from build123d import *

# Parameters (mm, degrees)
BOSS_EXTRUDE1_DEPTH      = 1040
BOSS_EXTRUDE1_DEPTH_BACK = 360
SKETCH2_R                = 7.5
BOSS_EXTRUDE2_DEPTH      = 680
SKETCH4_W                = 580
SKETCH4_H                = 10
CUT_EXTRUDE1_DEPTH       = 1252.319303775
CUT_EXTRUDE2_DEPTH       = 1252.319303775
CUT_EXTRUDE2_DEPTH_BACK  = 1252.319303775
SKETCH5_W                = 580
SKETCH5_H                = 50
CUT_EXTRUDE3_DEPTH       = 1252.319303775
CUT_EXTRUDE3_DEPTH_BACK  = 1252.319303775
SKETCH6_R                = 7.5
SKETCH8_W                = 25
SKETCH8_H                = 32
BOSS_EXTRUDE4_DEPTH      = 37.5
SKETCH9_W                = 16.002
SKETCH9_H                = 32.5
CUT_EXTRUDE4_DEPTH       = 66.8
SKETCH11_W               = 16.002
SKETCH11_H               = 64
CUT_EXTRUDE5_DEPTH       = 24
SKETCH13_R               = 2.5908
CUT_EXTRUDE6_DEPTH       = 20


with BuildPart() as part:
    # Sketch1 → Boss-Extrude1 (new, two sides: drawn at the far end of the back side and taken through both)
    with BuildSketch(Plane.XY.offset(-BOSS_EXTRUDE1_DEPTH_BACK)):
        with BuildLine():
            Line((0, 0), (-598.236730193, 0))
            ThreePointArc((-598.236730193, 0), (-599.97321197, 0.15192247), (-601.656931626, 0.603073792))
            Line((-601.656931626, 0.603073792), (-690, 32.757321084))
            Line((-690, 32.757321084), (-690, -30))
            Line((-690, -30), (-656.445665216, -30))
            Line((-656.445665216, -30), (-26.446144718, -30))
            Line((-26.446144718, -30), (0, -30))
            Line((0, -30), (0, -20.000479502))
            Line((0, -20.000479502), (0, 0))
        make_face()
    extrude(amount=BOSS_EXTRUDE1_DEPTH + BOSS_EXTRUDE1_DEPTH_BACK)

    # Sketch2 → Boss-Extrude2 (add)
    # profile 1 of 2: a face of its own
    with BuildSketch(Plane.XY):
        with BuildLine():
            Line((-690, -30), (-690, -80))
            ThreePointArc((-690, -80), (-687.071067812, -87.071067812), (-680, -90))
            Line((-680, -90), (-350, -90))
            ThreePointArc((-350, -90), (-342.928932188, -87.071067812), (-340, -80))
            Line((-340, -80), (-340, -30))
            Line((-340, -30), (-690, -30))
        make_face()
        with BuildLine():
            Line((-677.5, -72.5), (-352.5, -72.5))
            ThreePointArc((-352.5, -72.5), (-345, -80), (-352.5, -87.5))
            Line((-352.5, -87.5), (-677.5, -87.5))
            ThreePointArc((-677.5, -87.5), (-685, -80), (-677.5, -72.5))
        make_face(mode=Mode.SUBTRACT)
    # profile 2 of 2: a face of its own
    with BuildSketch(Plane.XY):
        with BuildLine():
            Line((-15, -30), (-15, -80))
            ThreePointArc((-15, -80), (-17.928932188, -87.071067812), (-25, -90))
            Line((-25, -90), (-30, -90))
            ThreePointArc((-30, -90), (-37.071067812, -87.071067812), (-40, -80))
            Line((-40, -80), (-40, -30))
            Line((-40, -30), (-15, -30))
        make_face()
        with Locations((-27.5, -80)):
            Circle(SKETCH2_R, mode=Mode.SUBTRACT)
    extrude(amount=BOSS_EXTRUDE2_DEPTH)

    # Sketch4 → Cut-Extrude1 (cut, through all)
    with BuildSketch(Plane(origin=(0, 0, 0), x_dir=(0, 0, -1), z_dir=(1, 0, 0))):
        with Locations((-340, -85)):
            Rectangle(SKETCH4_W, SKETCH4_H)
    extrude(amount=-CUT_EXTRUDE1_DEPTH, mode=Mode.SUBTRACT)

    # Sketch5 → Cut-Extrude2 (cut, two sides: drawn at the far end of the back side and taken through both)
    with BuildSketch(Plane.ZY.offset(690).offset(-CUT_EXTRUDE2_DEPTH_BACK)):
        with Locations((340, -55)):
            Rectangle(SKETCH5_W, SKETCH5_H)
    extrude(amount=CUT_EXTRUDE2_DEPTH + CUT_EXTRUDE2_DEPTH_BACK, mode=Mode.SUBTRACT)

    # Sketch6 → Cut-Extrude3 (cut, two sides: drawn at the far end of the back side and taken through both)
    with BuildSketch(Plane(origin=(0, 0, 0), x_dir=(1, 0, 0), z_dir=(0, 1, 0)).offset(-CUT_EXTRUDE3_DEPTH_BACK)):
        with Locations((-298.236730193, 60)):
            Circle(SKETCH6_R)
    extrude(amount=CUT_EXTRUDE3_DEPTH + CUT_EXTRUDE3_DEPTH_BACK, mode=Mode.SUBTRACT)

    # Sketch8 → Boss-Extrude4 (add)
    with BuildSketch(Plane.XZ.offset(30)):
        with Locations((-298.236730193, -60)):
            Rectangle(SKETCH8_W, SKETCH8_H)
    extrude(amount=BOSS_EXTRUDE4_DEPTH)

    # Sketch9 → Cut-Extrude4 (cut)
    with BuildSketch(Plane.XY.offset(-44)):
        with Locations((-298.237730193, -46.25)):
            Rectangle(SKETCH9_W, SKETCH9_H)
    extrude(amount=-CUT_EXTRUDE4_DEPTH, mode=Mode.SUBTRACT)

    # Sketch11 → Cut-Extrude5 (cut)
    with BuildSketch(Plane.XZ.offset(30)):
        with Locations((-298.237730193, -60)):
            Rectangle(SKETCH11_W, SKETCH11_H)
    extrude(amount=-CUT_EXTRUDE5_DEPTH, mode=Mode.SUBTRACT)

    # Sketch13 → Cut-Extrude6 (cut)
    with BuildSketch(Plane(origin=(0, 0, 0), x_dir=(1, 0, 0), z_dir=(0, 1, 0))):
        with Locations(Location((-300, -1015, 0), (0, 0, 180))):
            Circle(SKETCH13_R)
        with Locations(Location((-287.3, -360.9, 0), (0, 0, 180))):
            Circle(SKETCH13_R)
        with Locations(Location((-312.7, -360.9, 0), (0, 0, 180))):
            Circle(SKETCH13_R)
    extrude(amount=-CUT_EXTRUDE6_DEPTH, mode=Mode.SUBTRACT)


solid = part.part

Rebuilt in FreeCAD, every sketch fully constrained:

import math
import FreeCAD as App
import Part
import Sketcher
Q = App.Units.Quantity

doc = App.newDocument("Part")
body = doc.addObject("PartDesign::Body", "Body")

# Sketch on XY plane
sketch1 = body.newObject("Sketcher::SketchObject", "Sketch")
sketch1.AttachmentSupport = (doc.getObject("XY_Plane"), [""])
sketch1.MapMode = "FlatFace"
sketch1.addGeometry([
    Part.LineSegment(App.Vector(0, 0, 0), App.Vector(-598.23673, 0, 0)),  # 0
    Part.ArcOfCircle(Part.Circle(App.Vector(-598.23673, 10, 0), App.Vector(0, 0, 1), 10), math.radians(-110), math.radians(-90)),  # 1
    Part.LineSegment(App.Vector(-601.656932, 0.603074, 0), App.Vector(-690, 32.757321, 0)),  # 2
    Part.LineSegment(App.Vector(-690, 32.757321, 0), App.Vector(-690, -30, 0)),  # 3
    Part.LineSegment(App.Vector(-690, -30, 0), App.Vector(0, -30, 0)),  # 4
    Part.LineSegment(App.Vector(0, -30, 0), App.Vector(0, 0, 0)),  # 5
], False)
sketch1.addConstraint([
    Sketcher.Constraint("Tangent", 0, 2, 1, 2),
    Sketcher.Constraint("Tangent", 1, 1, 2, 1),
    Sketcher.Constraint("Coincident", 2, 2, 3, 1),
    Sketcher.Constraint("Coincident", 3, 2, 4, 1),
    Sketcher.Constraint("Coincident", 4, 2, 5, 1),
    Sketcher.Constraint("Coincident", 5, 2, 0, 1),
    Sketcher.Constraint("Horizontal", 0),
    Sketcher.Constraint("Vertical", 3),
    Sketcher.Constraint("Horizontal", 4),
    Sketcher.Constraint("Vertical", 5),
    Sketcher.Constraint("Coincident", 5, 2, -1, 1),
    Sketcher.Constraint("Radius", 1, 10.0),
    Sketcher.Constraint("DistanceX", 4, 1, 4, 2, 690.0),
    Sketcher.Constraint("DistanceY", 5, 1, 5, 2, 30.0),
    Sketcher.Constraint("Angle", 2, Q("160 deg")),
    Sketcher.Constraint("DistanceX", 0, 2, 0, 1, 598.23673),
])
pad1 = body.newObject("PartDesign::Pad", "Pad")
pad1.Profile = sketch1
pad1.Type = "TwoLengths"
pad1.Length = 1040
pad1.Length2 = 360

# Sketch on XY plane
sketch2 = body.newObject("Sketcher::SketchObject", "Sketch001")
sketch2.AttachmentSupport = (doc.getObject("XY_Plane"), [""])
sketch2.MapMode = "FlatFace"
sketch2.addGeometry([
    Part.LineSegment(App.Vector(-690, -30, 0), App.Vector(-690, -80, 0)),  # 0
    Part.ArcOfCircle(Part.Circle(App.Vector(-680, -80, 0), App.Vector(0, 0, 1), 10), math.radians(180), math.radians(270)),  # 1
    Part.LineSegment(App.Vector(-680, -90, 0), App.Vector(-350, -90, 0)),  # 2
    Part.ArcOfCircle(Part.Circle(App.Vector(-350, -80, 0), App.Vector(0, 0, 1), 10), math.radians(-90), math.radians(0)),  # 3
    Part.LineSegment(App.Vector(-340, -80, 0), App.Vector(-340, -30, 0)),  # 4
    Part.LineSegment(App.Vector(-340, -30, 0), App.Vector(-690, -30, 0)),  # 5
    Part.ArcOfCircle(Part.Circle(App.Vector(-677.5, -80, 0), App.Vector(0, 0, 1), 7.5), math.radians(90), math.radians(270)),  # 6
    Part.LineSegment(App.Vector(-677.5, -72.5, 0), App.Vector(-352.5, -72.5, 0)),  # 7
    Part.ArcOfCircle(Part.Circle(App.Vector(-352.5, -80, 0), App.Vector(0, 0, 1), 7.5), math.radians(-90), math.radians(90)),  # 8
    Part.LineSegment(App.Vector(-352.5, -87.5, 0), App.Vector(-677.5, -87.5, 0)),  # 9
    Part.LineSegment(App.Vector(-15, -80, 0), App.Vector(-15, -30, 0)),  # 10
    Part.LineSegment(App.Vector(-15, -30, 0), App.Vector(-40, -30, 0)),  # 11
    Part.LineSegment(App.Vector(-40, -30, 0), App.Vector(-40, -80, 0)),  # 12
    Part.ArcOfCircle(Part.Circle(App.Vector(-30, -80, 0), App.Vector(0, 0, 1), 10), math.radians(180), math.radians(270)),  # 13
    Part.LineSegment(App.Vector(-30, -90, 0), App.Vector(-25, -90, 0)),  # 14
    Part.ArcOfCircle(Part.Circle(App.Vector(-25, -80, 0), App.Vector(0, 0, 1), 10), math.radians(-90), math.radians(0)),  # 15
    Part.Circle(App.Vector(-27.5, -80, 0), App.Vector(0, 0, 1), 7.5),  # 16
], False)
sketch2.addConstraint([
    Sketcher.Constraint("Tangent", 0, 2, 1, 1),
    Sketcher.Constraint("Tangent", 1, 2, 2, 1),
    Sketcher.Constraint("Tangent", 2, 2, 3, 1),
    Sketcher.Constraint("Tangent", 3, 2, 4, 1),
    Sketcher.Constraint("Coincident", 4, 2, 5, 1),
    Sketcher.Constraint("Coincident", 5, 2, 0, 1),
    Sketcher.Constraint("Tangent", 6, 1, 7, 1),
    Sketcher.Constraint("Tangent", 7, 2, 8, 2),
    Sketcher.Constraint("Tangent", 8, 1, 9, 1),
    Sketcher.Constraint("Tangent", 9, 2, 6, 2),
    Sketcher.Constraint("Coincident", 10, 2, 11, 1),
    Sketcher.Constraint("Coincident", 11, 2, 12, 1),
    Sketcher.Constraint("Tangent", 12, 2, 13, 1),
    Sketcher.Constraint("Tangent", 13, 2, 14, 1),
    Sketcher.Constraint("Tangent", 14, 2, 15, 1),
    Sketcher.Constraint("Tangent", 15, 2, 10, 1),
    Sketcher.Constraint("Vertical", 0),
    Sketcher.Constraint("Horizontal", 2),
    Sketcher.Constraint("Vertical", 4),
    Sketcher.Constraint("Horizontal", 5),
    Sketcher.Constraint("Horizontal", 7),
    Sketcher.Constraint("Horizontal", 9),
    Sketcher.Constraint("Vertical", 10),
    Sketcher.Constraint("Horizontal", 11),
    Sketcher.Constraint("Vertical", 12),
    Sketcher.Constraint("Horizontal", 14),
    Sketcher.Constraint("Equal", 1, 3),
    Sketcher.Constraint("Equal", 3, 13),
    Sketcher.Constraint("Equal", 13, 15),
    Sketcher.Constraint("Equal", 8, 16),
    Sketcher.Constraint("Horizontal", 3, 3, 6, 3),
    Sketcher.Constraint("Horizontal", 8, 3, 13, 3),
    Sketcher.Constraint("Horizontal", 15, 3, 16, 3),
    Sketcher.Constraint("Horizontal", 5, 2, 10, 2),
    Sketcher.Constraint("Diameter", 16, 15.0),
    Sketcher.Constraint("Radius", 1, 10.0),
    Sketcher.Constraint("DistanceX", 2, 1, 2, 2, 330.0),
    Sketcher.Constraint("DistanceX", 7, 1, 7, 2, 325.0),
    Sketcher.Constraint("DistanceX", 11, 2, 11, 1, 25.0),
    Sketcher.Constraint("DistanceY", 0, 2, 0, 1, 50.0),
    Sketcher.Constraint("DistanceX", 1, 3, -1, 1, 680.0),
    Sketcher.Constraint("DistanceY", 1, 3, -1, 1, 80.0),
    Sketcher.Constraint("DistanceX", 13, 3, -1, 1, 30.0),
    Sketcher.Constraint("DistanceX", 8, 3, 16, 3, 325.0),
    Sketcher.Constraint("DistanceX", 6, 3, -1, 1, 677.5),
])
pad2 = body.newObject("PartDesign::Pad", "Pad001")
pad2.Profile = sketch2
pad2.Length = 680

# Sketch on YZ plane
sketch3 = body.newObject("Sketcher::SketchObject", "Sketch002")
sketch3.AttachmentSupport = (doc.getObject("YZ_Plane"), [""])
sketch3.MapMode = "FlatFace"
sketch3.addGeometry([
    Part.LineSegment(App.Vector(-80, 630, 0), App.Vector(-90, 630, 0)),
    Part.LineSegment(App.Vector(-90, 630, 0), App.Vector(-90, 50, 0)),
    Part.LineSegment(App.Vector(-90, 50, 0), App.Vector(-80, 50, 0)),
    Part.LineSegment(App.Vector(-80, 50, 0), App.Vector(-80, 630, 0)),
], False)
sketch3.addConstraint([
    Sketcher.Constraint("Coincident", 0, 2, 1, 1),
    Sketcher.Constraint("Coincident", 1, 2, 2, 1),
    Sketcher.Constraint("Coincident", 2, 2, 3, 1),
    Sketcher.Constraint("Coincident", 3, 2, 0, 1),
    Sketcher.Constraint("Horizontal", 0),
    Sketcher.Constraint("Vertical", 1),
    Sketcher.Constraint("Horizontal", 2),
    Sketcher.Constraint("Vertical", 3),
    Sketcher.Constraint("DistanceX", 0, 2, 0, 1, 10.0),
    Sketcher.Constraint("DistanceY", 1, 2, 1, 1, 580.0),
    Sketcher.Constraint("DistanceX", 0, 2, -1, 1, 90.0),
    Sketcher.Constraint("DistanceY", -1, 1, 0, 2, 630.0),
])
pocket1 = body.newObject("PartDesign::Pocket", "Pocket")
pocket1.Profile = sketch3
pocket1.Type = "ThroughAll"

# Sketch on YZ plane
sketch4 = body.newObject("Sketcher::SketchObject", "Sketch003")
sketch4.AttachmentSupport = (doc.getObject("YZ_Plane"), [""])
sketch4.MapMode = "FlatFace"
sketch4.AttachmentOffset = App.Placement(App.Vector(0, 0, -690), App.Rotation())
sketch4.addGeometry([
    Part.LineSegment(App.Vector(-30, 50, 0), App.Vector(-80, 50, 0)),
    Part.LineSegment(App.Vector(-80, 50, 0), App.Vector(-80, 630, 0)),
    Part.LineSegment(App.Vector(-80, 630, 0), App.Vector(-30, 630, 0)),
    Part.LineSegment(App.Vector(-30, 630, 0), App.Vector(-30, 50, 0)),
], False)
sketch4.addConstraint([
    Sketcher.Constraint("Coincident", 0, 2, 1, 1),
    Sketcher.Constraint("Coincident", 1, 2, 2, 1),
    Sketcher.Constraint("Coincident", 2, 2, 3, 1),
    Sketcher.Constraint("Coincident", 3, 2, 0, 1),
    Sketcher.Constraint("Horizontal", 0),
    Sketcher.Constraint("Vertical", 1),
    Sketcher.Constraint("Horizontal", 2),
    Sketcher.Constraint("Vertical", 3),
    Sketcher.Constraint("DistanceX", 0, 2, 0, 1, 50.0),
    Sketcher.Constraint("DistanceY", 1, 1, 1, 2, 580.0),
    Sketcher.Constraint("DistanceX", 0, 2, -1, 1, 80.0),
    Sketcher.Constraint("DistanceY", -1, 1, 0, 2, 50.0),
])
pocket2 = body.newObject("PartDesign::Pocket", "Pocket001")
pocket2.Profile = sketch4
pocket2.Type = "ThroughAll"
pocket2.Midplane = True

# Sketch on XZ plane
sketch5 = body.newObject("Sketcher::SketchObject", "Sketch004")
sketch5.AttachmentSupport = (doc.getObject("XZ_Plane"), [""])
sketch5.MapMode = "FlatFace"
sketch5.addGeometry(Part.Circle(App.Vector(-298.23673, -60, 0), App.Vector(0, 0, 1), 7.5), False)
sketch5.addConstraint([
    Sketcher.Constraint("Diameter", 0, 15.0),
    Sketcher.Constraint("DistanceY", 0, 3, -1, 1, 60.0),
    Sketcher.Constraint("DistanceX", 0, 3, -1, 1, 298.23673),
])
pocket3 = body.newObject("PartDesign::Pocket", "Pocket002")
pocket3.Profile = sketch5
pocket3.Type = "ThroughAll"
pocket3.Midplane = True

# Sketch on XZ plane
sketch6 = body.newObject("Sketcher::SketchObject", "Sketch005")
sketch6.AttachmentSupport = (doc.getObject("XZ_Plane"), [""])
sketch6.MapMode = "FlatFace"
sketch6.AttachmentOffset = App.Placement(App.Vector(0, 0, 30), App.Rotation())
sketch6.addGeometry([
    Part.LineSegment(App.Vector(-310.73673, -44, 0), App.Vector(-310.73673, -76, 0)),
    Part.LineSegment(App.Vector(-310.73673, -76, 0), App.Vector(-285.73673, -76, 0)),
    Part.LineSegment(App.Vector(-285.73673, -76, 0), App.Vector(-285.73673, -44, 0)),
    Part.LineSegment(App.Vector(-285.73673, -44, 0), App.Vector(-310.73673, -44, 0)),
], False)
sketch6.addConstraint([
    Sketcher.Constraint("Coincident", 0, 2, 1, 1),
    Sketcher.Constraint("Coincident", 1, 2, 2, 1),
    Sketcher.Constraint("Coincident", 2, 2, 3, 1),
    Sketcher.Constraint("Coincident", 3, 2, 0, 1),
    Sketcher.Constraint("Vertical", 0),
    Sketcher.Constraint("Horizontal", 1),
    Sketcher.Constraint("Vertical", 2),
    Sketcher.Constraint("Horizontal", 3),
    Sketcher.Constraint("DistanceX", 1, 1, 1, 2, 25.0),
    Sketcher.Constraint("DistanceY", 0, 2, 0, 1, 32.0),
    Sketcher.Constraint("DistanceY", 0, 2, -1, 1, 76.0),
    Sketcher.Constraint("DistanceX", 0, 2, -1, 1, 310.73673),
])
pad3 = body.newObject("PartDesign::Pad", "Pad002")
pad3.Profile = sketch6
pad3.Length = 37.5

# Sketch on XY plane
sketch7 = body.newObject("Sketcher::SketchObject", "Sketch006")
sketch7.AttachmentSupport = (doc.getObject("XY_Plane"), [""])
sketch7.MapMode = "FlatFace"
sketch7.AttachmentOffset = App.Placement(App.Vector(0, 0, -44), App.Rotation())
sketch7.addGeometry([
    Part.LineSegment(App.Vector(-306.23873, -30, 0), App.Vector(-306.23873, -62.5, 0)),
    Part.LineSegment(App.Vector(-306.23873, -62.5, 0), App.Vector(-290.23673, -62.5, 0)),
    Part.LineSegment(App.Vector(-290.23673, -62.5, 0), App.Vector(-290.23673, -30, 0)),
    Part.LineSegment(App.Vector(-290.23673, -30, 0), App.Vector(-306.23873, -30, 0)),
], False)
sketch7.addConstraint([
    Sketcher.Constraint("Coincident", 0, 2, 1, 1),
    Sketcher.Constraint("Coincident", 1, 2, 2, 1),
    Sketcher.Constraint("Coincident", 2, 2, 3, 1),
    Sketcher.Constraint("Coincident", 3, 2, 0, 1),
    Sketcher.Constraint("Vertical", 0),
    Sketcher.Constraint("Horizontal", 1),
    Sketcher.Constraint("Vertical", 2),
    Sketcher.Constraint("Horizontal", 3),
    Sketcher.Constraint("DistanceY", 0, 2, 0, 1, 32.5),
    Sketcher.Constraint("DistanceY", 2, 2, -1, 1, 30.0),
    Sketcher.Constraint("DistanceX", 1, 1, 1, 2, 16.002),
    Sketcher.Constraint("DistanceX", 0, 2, -1, 1, 306.23873),
])
pocket4 = body.newObject("PartDesign::Pocket", "Pocket003")
pocket4.Profile = sketch7
pocket4.Length = 66.8

# Sketch on XZ plane
sketch8 = body.newObject("Sketcher::SketchObject", "Sketch007")
sketch8.AttachmentSupport = (doc.getObject("XZ_Plane"), [""])
sketch8.MapMode = "FlatFace"
sketch8.AttachmentOffset = App.Placement(App.Vector(0, 0, 30), App.Rotation())
sketch8.addGeometry([
    Part.LineSegment(App.Vector(-306.23873, -28, 0), App.Vector(-306.23873, -92, 0)),
    Part.LineSegment(App.Vector(-306.23873, -92, 0), App.Vector(-290.23673, -92, 0)),
    Part.LineSegment(App.Vector(-290.23673, -92, 0), App.Vector(-290.23673, -28, 0)),
    Part.LineSegment(App.Vector(-290.23673, -28, 0), App.Vector(-306.23873, -28, 0)),
], False)
sketch8.addConstraint([
    Sketcher.Constraint("Coincident", 0, 2, 1, 1),
    Sketcher.Constraint("Coincident", 1, 2, 2, 1),
    Sketcher.Constraint("Coincident", 2, 2, 3, 1),
    Sketcher.Constraint("Coincident", 3, 2, 0, 1),
    Sketcher.Constraint("Vertical", 0),
    Sketcher.Constraint("Horizontal", 1),
    Sketcher.Constraint("Vertical", 2),
    Sketcher.Constraint("Horizontal", 3),
    Sketcher.Constraint("DistanceY", 0, 2, 0, 1, 64.0),
    Sketcher.Constraint("DistanceY", 0, 2, -1, 1, 92.0),
    Sketcher.Constraint("DistanceX", 1, 1, 1, 2, 16.002),
    Sketcher.Constraint("DistanceX", 0, 2, -1, 1, 306.23873),
])
pocket5 = body.newObject("PartDesign::Pocket", "Pocket004")
pocket5.Profile = sketch8
pocket5.Length = 24

# Sketch on XZ plane
sketch9 = body.newObject("Sketcher::SketchObject", "Sketch008")
sketch9.AttachmentSupport = (doc.getObject("XZ_Plane"), [""])
sketch9.MapMode = "FlatFace"
sketch9.addGeometry([
    Part.Circle(App.Vector(-300, 1015, 0), App.Vector(0, 0, 1), 2.5908),
    Part.Circle(App.Vector(-287.3, 360.9, 0), App.Vector(0, 0, 1), 2.5908),
    Part.Circle(App.Vector(-312.7, 360.9, 0), App.Vector(0, 0, 1), 2.5908),
], False)
sketch9.addConstraint([
    Sketcher.Constraint("Equal", 0, 1),
    Sketcher.Constraint("Equal", 1, 2),
    Sketcher.Constraint("Horizontal", 1, 3, 2, 3),
    Sketcher.Constraint("DistanceX", 0, 3, -1, 1, 300.0),
    Sketcher.Constraint("DistanceY", -1, 1, 0, 3, 1015.0),
    Sketcher.Constraint("Diameter", 0, 5.1816),
    Sketcher.Constraint("DistanceX", 1, 3, -1, 1, 287.3),
    Sketcher.Constraint("DistanceY", -1, 1, 1, 3, 360.9),
    Sketcher.Constraint("DistanceX", 2, 3, -1, 1, 312.7),
])
pocket6 = body.newObject("PartDesign::Pocket", "Pocket005")
pocket6.Profile = sketch9
pocket6.Length = 20
pocket6.Reversed = True

doc.recompute()
